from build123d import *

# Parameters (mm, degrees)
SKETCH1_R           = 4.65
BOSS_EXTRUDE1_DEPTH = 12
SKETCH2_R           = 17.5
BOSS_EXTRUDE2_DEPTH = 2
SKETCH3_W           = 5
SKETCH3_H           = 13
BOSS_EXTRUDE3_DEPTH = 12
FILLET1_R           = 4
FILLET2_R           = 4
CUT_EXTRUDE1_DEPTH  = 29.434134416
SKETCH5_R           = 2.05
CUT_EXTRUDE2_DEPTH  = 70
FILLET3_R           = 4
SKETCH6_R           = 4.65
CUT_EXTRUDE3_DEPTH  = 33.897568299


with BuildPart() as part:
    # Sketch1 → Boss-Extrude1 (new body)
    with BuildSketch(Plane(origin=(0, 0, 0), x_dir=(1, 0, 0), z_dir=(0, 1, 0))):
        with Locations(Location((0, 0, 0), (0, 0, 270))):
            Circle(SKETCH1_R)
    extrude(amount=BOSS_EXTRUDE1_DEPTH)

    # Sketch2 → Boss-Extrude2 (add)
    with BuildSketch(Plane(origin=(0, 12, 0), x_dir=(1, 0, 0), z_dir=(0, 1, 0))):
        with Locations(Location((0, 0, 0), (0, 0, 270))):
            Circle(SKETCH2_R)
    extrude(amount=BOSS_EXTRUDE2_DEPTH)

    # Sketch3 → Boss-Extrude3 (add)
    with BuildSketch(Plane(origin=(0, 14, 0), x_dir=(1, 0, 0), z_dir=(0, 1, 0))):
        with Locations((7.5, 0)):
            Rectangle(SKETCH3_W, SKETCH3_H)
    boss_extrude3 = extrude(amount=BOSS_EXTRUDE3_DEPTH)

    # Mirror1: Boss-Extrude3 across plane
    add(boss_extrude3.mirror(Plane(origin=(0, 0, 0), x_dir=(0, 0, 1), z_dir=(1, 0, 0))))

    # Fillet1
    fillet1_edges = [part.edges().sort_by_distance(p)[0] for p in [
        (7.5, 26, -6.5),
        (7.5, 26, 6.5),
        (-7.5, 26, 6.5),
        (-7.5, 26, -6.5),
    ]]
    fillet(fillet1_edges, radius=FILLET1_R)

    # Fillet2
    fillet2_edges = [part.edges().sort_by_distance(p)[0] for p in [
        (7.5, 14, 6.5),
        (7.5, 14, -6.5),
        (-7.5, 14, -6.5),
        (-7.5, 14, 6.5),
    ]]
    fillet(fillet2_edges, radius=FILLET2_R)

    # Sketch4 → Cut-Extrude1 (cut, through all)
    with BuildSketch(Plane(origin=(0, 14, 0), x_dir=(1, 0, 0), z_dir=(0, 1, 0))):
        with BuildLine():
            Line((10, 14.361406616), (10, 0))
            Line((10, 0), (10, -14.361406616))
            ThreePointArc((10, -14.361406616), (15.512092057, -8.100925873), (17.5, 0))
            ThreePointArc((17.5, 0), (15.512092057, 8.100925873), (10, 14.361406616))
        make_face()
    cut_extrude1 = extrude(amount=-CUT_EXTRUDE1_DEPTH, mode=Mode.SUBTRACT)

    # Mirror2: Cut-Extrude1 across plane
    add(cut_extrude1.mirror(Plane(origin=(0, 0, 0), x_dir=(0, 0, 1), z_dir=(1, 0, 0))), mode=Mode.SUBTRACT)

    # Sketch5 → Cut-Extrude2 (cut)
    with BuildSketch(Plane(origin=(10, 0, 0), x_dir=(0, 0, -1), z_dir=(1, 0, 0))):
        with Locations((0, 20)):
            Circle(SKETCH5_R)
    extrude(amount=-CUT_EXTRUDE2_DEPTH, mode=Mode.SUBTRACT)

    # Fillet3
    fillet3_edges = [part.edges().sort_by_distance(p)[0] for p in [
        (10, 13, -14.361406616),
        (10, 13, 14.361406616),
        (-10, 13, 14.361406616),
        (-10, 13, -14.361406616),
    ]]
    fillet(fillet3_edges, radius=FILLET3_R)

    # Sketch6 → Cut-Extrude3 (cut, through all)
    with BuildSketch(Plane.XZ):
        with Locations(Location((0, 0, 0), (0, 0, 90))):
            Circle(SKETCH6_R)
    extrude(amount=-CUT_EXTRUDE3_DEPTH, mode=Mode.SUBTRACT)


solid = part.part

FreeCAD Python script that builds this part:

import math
import FreeCAD as App
import Part
import Sketcher

V = App.Vector


def edges_at(feature, points):
    """Names of the edges that pass closest to the given points."""
    edges = feature.Shape.Edges
    near = lambda p: min(range(len(edges)), key=lambda i: edges[i].distToShape(Part.Vertex(*p))[0])
    return sorted({f"Edge{near(p) + 1}" for p in points})


def add_polygon(sketch, points):
    """Adds a closed chain of lines whose ends are joined by coincident constraints."""
    first, n = sketch.GeometryCount, len(points)
    for a, b in zip(points, points[1:] + points[:1]):
        sketch.addGeometry(Part.LineSegment(App.Vector(*a, 0), App.Vector(*b, 0)), False)
    for i in range(n):
        sketch.addConstraint(Sketcher.Constraint("Coincident", first + i, 2, first + (i + 1) % n, 1))

doc = App.newDocument("Part")
params = doc.addObject("Spreadsheet::Sheet", "Params")
for row, (alias, value) in enumerate([
    ("sketch1_diameter", "9.3 mm"),
    ("pad1_length", "12 mm"),
    ("sketch2_diameter", "35 mm"),
    ("pad2_length", "2 mm"),
    ("sketch3_width", "5 mm"),
    ("sketch3_height", "13 mm"),
    ("pad3_length", "12 mm"),
    ("fillet_radius", "4 mm"),
    ("fillet2_radius", "4 mm"),
    ("sketch4_radius", "17.5 mm"),
    ("sketch5_diameter", "4.1 mm"),
    ("pocket2_length", "70 mm"),
    ("fillet3_radius", "4 mm"),
    ("sketch6_diameter", "9.3 mm"),
], start=1):
    params.set(f"A{row}", alias)
    params.set(f"B{row}", "=" + value)
    params.setAlias(f"B{row}", alias)

body = doc.addObject("PartDesign::Body", "Body")

# Sketch on XZ plane
sketch1 = body.newObject("Sketcher::SketchObject", "Sketch")
sketch1.AttachmentSupport = (doc.getObject("XZ_Plane"), [""])
sketch1.MapMode = "FlatFace"
sketch1.addGeometry(Part.Circle(V(0, 0, 0), V(0, 0, 1), 4.7), False)
sketch1.addConstraint([
    Sketcher.Constraint("Coincident", 0, 3, -1, 1),
    Sketcher.Constraint("Diameter", 0, 9.3),
])
sketch1.setExpression("Constraints[1]", "Params.sketch1_diameter")
pad1 = body.newObject("PartDesign::Pad", "Pad")
pad1.Profile = sketch1
pad1.setExpression("Length", "Params.pad1_length")
pad1.Reversed = True

# Sketch on XZ plane
sketch2 = body.newObject("Sketcher::SketchObject", "Sketch001")
sketch2.AttachmentSupport = (doc.getObject("XZ_Plane"), [""])
sketch2.MapMode = "FlatFace"
sketch2.AttachmentOffset = App.Placement(V(0, 0, -12), App.Rotation())
sketch2.addGeometry(Part.Circle(V(0, 0, 0), V(0, 0, 1), 18), False)
sketch2.addConstraint([
    Sketcher.Constraint("Coincident", 0, 3, -1, 1),
    Sketcher.Constraint("Diameter", 0, 35.0),
])
sketch2.setExpression("Constraints[1]", "Params.sketch2_diameter")
pad2 = body.newObject("PartDesign::Pad", "Pad001")
pad2.Profile = sketch2
pad2.setExpression("Length", "Params.pad2_length")
pad2.Reversed = True

# Sketch on XZ plane
sketch3 = body.newObject("Sketcher::SketchObject", "Sketch002")
sketch3.AttachmentSupport = (doc.getObject("XZ_Plane"), [""])
sketch3.MapMode = "FlatFace"
sketch3.AttachmentOffset = App.Placement(V(0, 0, -14), App.Rotation())
add_polygon(sketch3, [(5, -6), (5, 6), (10, 6), (10, -6)])  # lines 0-3
sketch3.addConstraint([
    Sketcher.Constraint("Vertical", 0),
    Sketcher.Constraint("Horizontal", 1),
    Sketcher.Constraint("Vertical", 2),
    Sketcher.Constraint("Horizontal", 3),
    Sketcher.Constraint("DistanceX", 1, 1, 1, 2, 5.0),
    Sketcher.Constraint("DistanceY", 0, 1, 0, 2, 13.0),
    Sketcher.Constraint("DistanceX", -1, 1, 0, 2, 5.0),
    Sketcher.Constraint("DistanceY", -1, 1, 0, 2, 6.5),
])
sketch3.setExpression("Constraints[8]", "Params.sketch3_width")
sketch3.setExpression("Constraints[9]", "Params.sketch3_height")
pad3 = body.newObject("PartDesign::Pad", "Pad002")
pad3.Profile = sketch3
pad3.setExpression("Length", "Params.pad3_length")
pad3.Reversed = True
doc.recompute()

mirrored = body.newObject("PartDesign::Mirrored", "Mirrored")
mirrored.Originals = [pad3]
mirrored.MirrorPlane = (doc.getObject("YZ_Plane"), [""])
body.Tip = mirrored
doc.recompute()

fillet = body.newObject("PartDesign::Fillet", "Fillet")
fillet.Base = (mirrored, edges_at(mirrored, [
    (7.5, 26, -6.5),
    (7.5, 26, 6.5),
    (-7.5, 26, 6.5),
    (-7.5, 26, -6.5),
]))
fillet.setExpression("Radius", "Params.fillet_radius")
doc.recompute()

fillet2 = body.newObject("PartDesign::Fillet", "Fillet001")
fillet2.Base = (fillet, edges_at(fillet, [
    (7.5, 14, 6.5),
    (7.5, 14, -6.5),
    (-7.5, 14, -6.5),
    (-7.5, 14, 6.5),
]))
fillet2.setExpression("Radius", "Params.fillet2_radius")

# Sketch on XZ plane
sketch4 = body.newObject("Sketcher::SketchObject", "Sketch003")
sketch4.AttachmentSupport = (doc.getObject("XZ_Plane"), [""])
sketch4.MapMode = "FlatFace"
sketch4.AttachmentOffset = App.Placement(V(0, 0, -14), App.Rotation())
sketch4.addGeometry([
    Part.LineSegment(V(10, -14, 0), V(10, 14, 0)),
    Part.ArcOfCircle(Part.Circle(V(0, 0, 0), V(0, 0, 1), 18), math.radians(0), math.radians(55)),
    Part.ArcOfCircle(Part.Circle(V(0, 0, 0), V(0, 0, 1), 18), math.radians(-55), math.radians(0)),
], False)
sketch4.addConstraint([
    Sketcher.Constraint("Coincident", 0, 2, 1, 2),
    Sketcher.Constraint("Tangent", 1, 1, 2, 2),
    Sketcher.Constraint("Coincident", 2, 1, 0, 1),
    Sketcher.Constraint("Vertical", 0),
    Sketcher.Constraint("Coincident", 1, 3, -1, 1),
    Sketcher.Constraint("Equal", 1, 2),
    Sketcher.Constraint("PointOnObject", 1, 1, -1),
    Sketcher.Constraint("Radius", 1, 17.5),
    Sketcher.Constraint("DistanceX", -1, 1, 0, 2, 10.0),
])
sketch4.setExpression("Constraints[7]", "Params.sketch4_radius")
pocket1 = body.newObject("PartDesign::Pocket", "Pocket")
pocket1.Profile = sketch4
pocket1.Type = "ThroughAll"
pocket1.Reversed = True
doc.recompute()

mirrored2 = body.newObject("PartDesign::Mirrored", "Mirrored001")
mirrored2.Originals = [pocket1]
mirrored2.MirrorPlane = (doc.getObject("YZ_Plane"), [""])
body.Tip = mirrored2

# Sketch on YZ plane
sketch5 = body.newObject("Sketcher::SketchObject", "Sketch004")
sketch5.AttachmentSupport = (doc.getObject("YZ_Plane"), [""])
sketch5.MapMode = "FlatFace"
sketch5.AttachmentOffset = App.Placement(V(0, 0, 10), App.Rotation())
sketch5.addGeometry(Part.Circle(V(20, 0, 0), V(0, 0, 1), 2), False)
sketch5.addConstraint([
    Sketcher.Constraint("PointOnObject", 0, 3, -1),
    Sketcher.Constraint("Diameter", 0, 4.1),
    Sketcher.Constraint("DistanceX", -1, 1, 0, 3, 20.0),
])
sketch5.setExpression("Constraints[1]", "Params.sketch5_diameter")
pocket2 = body.newObject("PartDesign::Pocket", "Pocket001")
pocket2.Profile = sketch5
pocket2.setExpression("Length", "Params.pocket2_length")
doc.recompute()

fillet3 = body.newObject("PartDesign::Fillet", "Fillet002")
fillet3.Base = (pocket2, edges_at(pocket2, [
    (10, 13, -14.361),
    (10, 13, 14.361),
    (-10, 13, 14.361),
    (-10, 13, -14.361),
]))
fillet3.setExpression("Radius", "Params.fillet3_radius")

# Sketch on XZ plane
sketch6 = body.newObject("Sketcher::SketchObject", "Sketch005")
sketch6.AttachmentSupport = (doc.getObject("XZ_Plane"), [""])
sketch6.MapMode = "FlatFace"
sketch6.addGeometry(Part.Circle(V(0, 0, 0), V(0, 0, 1), 4.7), False)
sketch6.addConstraint([
    Sketcher.Constraint("Coincident", 0, 3, -1, 1),
    Sketcher.Constraint("Diameter", 0, 9.3),
])
sketch6.setExpression("Constraints[1]", "Params.sketch6_diameter")
pocket3 = body.newObject("PartDesign::Pocket", "Pocket002")
pocket3.Profile = sketch6
pocket3.Type = "ThroughAll"

doc.recompute()
